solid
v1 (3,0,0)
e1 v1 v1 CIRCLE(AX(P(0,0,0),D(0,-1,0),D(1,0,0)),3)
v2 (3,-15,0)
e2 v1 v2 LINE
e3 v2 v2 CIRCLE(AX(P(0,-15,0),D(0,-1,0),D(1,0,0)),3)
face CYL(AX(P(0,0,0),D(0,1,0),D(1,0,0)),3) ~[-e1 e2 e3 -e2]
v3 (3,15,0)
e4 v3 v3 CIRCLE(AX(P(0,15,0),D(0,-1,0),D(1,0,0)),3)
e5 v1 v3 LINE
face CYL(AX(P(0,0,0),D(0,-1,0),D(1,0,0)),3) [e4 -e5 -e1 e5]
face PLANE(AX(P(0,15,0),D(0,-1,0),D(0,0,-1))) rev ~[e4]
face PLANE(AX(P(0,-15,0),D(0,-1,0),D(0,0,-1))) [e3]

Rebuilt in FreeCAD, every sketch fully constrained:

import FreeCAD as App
import Part
import Sketcher

V = App.Vector
Q = App.Units.Quantity

doc = App.newDocument("Part")
body = doc.addObject("PartDesign::Body", "Body")

# Sketch on XZ plane
sketch1 = body.newObject("Sketcher::SketchObject", "Sketch")
sketch1.AttachmentSupport = (doc.getObject("XZ_Plane"), [""])
sketch1.MapMode = "FlatFace"
sketch1.addGeometry(Part.Circle(V(0, 0, 0), V(0, 0, 1), 3), False)
sketch1.addConstraint(Sketcher.Constraint("Coincident", 0, 3, -1, 1))
sketch1.addConstraint(Sketcher.Constraint("Diameter", 0, Q("6 mm")))
pad1 = body.newObject("PartDesign::Pad", "Pad")
pad1.Profile = sketch1
pad1.Length = 30
pad1.Midplane = True

doc.recompute()
